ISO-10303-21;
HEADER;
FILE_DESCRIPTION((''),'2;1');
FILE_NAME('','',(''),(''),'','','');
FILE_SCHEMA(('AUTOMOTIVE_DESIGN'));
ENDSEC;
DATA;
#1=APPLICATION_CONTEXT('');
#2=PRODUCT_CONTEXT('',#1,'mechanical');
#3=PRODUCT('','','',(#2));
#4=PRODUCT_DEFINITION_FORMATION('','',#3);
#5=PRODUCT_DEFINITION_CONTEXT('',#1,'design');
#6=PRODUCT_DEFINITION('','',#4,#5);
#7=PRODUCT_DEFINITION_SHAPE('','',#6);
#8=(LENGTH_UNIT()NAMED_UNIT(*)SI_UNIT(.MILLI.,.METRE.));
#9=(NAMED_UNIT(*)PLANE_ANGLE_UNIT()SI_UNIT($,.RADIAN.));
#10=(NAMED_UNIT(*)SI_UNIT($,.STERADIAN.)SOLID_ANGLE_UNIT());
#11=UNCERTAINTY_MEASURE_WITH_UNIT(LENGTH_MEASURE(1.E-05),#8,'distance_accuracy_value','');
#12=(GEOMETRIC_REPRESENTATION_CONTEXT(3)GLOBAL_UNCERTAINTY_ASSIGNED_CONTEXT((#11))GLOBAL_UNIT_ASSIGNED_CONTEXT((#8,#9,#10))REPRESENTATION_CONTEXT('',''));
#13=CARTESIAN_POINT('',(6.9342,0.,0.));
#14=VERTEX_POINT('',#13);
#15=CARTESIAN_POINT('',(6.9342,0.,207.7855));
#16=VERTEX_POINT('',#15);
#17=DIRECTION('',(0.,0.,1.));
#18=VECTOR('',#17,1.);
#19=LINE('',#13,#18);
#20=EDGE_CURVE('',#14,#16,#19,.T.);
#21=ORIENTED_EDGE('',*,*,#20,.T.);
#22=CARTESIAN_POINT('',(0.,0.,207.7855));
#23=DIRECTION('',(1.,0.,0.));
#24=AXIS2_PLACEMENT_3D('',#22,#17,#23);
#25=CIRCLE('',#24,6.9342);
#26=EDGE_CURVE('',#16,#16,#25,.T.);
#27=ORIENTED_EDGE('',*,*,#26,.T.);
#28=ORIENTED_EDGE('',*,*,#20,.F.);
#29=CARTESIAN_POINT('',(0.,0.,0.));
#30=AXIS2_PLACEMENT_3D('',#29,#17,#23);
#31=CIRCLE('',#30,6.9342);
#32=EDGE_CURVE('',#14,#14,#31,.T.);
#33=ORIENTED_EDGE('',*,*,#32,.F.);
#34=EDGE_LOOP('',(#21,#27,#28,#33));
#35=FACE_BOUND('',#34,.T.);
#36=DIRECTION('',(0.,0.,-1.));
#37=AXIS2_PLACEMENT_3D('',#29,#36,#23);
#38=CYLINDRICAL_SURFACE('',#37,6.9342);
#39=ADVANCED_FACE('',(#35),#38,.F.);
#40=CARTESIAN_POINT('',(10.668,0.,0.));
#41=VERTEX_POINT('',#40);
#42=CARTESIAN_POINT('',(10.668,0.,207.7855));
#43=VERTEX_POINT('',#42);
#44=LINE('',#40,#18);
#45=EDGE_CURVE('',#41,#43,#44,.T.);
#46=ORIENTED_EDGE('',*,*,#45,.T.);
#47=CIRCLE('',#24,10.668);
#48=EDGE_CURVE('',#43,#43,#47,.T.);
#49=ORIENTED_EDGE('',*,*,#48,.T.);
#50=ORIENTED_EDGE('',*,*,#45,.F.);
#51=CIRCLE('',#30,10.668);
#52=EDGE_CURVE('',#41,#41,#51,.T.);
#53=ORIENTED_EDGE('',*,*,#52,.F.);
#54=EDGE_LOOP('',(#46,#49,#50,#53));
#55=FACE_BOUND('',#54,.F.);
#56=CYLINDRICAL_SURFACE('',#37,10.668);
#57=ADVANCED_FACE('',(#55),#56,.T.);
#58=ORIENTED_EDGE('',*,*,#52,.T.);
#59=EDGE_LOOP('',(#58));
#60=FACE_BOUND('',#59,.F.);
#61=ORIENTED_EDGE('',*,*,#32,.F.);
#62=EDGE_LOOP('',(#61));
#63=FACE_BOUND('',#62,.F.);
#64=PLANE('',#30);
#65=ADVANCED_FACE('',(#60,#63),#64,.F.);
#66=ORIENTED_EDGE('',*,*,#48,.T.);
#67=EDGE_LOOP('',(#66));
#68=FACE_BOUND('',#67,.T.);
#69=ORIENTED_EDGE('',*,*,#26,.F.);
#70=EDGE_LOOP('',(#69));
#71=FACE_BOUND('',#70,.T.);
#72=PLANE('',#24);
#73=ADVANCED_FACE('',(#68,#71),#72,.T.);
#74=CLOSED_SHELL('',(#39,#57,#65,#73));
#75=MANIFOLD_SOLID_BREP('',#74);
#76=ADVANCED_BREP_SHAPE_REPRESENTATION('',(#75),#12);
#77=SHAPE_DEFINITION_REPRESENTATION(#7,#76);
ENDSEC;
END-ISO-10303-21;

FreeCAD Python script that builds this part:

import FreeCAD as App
import Part
import Sketcher

V = App.Vector
Q = App.Units.Quantity

doc = App.newDocument("Part")
body = doc.addObject("PartDesign::Body", "Body")

# Sketch on XY plane
sketch1 = body.newObject("Sketcher::SketchObject", "Sketch")
sketch1.AttachmentSupport = (doc.getObject("XY_Plane"), [""])
sketch1.MapMode = "FlatFace"
sketch1.addGeometry(Part.Circle(V(0, 0, 0), V(0, 0, 1), 11), False)
sketch1.addGeometry(Part.Circle(V(0, 0, 0), V(0, 0, 1), 7), False)
sketch1.addConstraint(Sketcher.Constraint("Coincident", 0, 3, -1, 1))
sketch1.addConstraint(Sketcher.Constraint("Coincident", 1, 3, -1, 1))
sketch1.addConstraint(Sketcher.Constraint("Diameter", 0, Q("0.84 in")))
sketch1.addConstraint(Sketcher.Constraint("Diameter", 1, Q("0.546 in")))
pad1 = body.newObject("PartDesign::Pad", "Pad")
pad1.Profile = sketch1
pad1.Length = 207.7855

doc.recompute()
